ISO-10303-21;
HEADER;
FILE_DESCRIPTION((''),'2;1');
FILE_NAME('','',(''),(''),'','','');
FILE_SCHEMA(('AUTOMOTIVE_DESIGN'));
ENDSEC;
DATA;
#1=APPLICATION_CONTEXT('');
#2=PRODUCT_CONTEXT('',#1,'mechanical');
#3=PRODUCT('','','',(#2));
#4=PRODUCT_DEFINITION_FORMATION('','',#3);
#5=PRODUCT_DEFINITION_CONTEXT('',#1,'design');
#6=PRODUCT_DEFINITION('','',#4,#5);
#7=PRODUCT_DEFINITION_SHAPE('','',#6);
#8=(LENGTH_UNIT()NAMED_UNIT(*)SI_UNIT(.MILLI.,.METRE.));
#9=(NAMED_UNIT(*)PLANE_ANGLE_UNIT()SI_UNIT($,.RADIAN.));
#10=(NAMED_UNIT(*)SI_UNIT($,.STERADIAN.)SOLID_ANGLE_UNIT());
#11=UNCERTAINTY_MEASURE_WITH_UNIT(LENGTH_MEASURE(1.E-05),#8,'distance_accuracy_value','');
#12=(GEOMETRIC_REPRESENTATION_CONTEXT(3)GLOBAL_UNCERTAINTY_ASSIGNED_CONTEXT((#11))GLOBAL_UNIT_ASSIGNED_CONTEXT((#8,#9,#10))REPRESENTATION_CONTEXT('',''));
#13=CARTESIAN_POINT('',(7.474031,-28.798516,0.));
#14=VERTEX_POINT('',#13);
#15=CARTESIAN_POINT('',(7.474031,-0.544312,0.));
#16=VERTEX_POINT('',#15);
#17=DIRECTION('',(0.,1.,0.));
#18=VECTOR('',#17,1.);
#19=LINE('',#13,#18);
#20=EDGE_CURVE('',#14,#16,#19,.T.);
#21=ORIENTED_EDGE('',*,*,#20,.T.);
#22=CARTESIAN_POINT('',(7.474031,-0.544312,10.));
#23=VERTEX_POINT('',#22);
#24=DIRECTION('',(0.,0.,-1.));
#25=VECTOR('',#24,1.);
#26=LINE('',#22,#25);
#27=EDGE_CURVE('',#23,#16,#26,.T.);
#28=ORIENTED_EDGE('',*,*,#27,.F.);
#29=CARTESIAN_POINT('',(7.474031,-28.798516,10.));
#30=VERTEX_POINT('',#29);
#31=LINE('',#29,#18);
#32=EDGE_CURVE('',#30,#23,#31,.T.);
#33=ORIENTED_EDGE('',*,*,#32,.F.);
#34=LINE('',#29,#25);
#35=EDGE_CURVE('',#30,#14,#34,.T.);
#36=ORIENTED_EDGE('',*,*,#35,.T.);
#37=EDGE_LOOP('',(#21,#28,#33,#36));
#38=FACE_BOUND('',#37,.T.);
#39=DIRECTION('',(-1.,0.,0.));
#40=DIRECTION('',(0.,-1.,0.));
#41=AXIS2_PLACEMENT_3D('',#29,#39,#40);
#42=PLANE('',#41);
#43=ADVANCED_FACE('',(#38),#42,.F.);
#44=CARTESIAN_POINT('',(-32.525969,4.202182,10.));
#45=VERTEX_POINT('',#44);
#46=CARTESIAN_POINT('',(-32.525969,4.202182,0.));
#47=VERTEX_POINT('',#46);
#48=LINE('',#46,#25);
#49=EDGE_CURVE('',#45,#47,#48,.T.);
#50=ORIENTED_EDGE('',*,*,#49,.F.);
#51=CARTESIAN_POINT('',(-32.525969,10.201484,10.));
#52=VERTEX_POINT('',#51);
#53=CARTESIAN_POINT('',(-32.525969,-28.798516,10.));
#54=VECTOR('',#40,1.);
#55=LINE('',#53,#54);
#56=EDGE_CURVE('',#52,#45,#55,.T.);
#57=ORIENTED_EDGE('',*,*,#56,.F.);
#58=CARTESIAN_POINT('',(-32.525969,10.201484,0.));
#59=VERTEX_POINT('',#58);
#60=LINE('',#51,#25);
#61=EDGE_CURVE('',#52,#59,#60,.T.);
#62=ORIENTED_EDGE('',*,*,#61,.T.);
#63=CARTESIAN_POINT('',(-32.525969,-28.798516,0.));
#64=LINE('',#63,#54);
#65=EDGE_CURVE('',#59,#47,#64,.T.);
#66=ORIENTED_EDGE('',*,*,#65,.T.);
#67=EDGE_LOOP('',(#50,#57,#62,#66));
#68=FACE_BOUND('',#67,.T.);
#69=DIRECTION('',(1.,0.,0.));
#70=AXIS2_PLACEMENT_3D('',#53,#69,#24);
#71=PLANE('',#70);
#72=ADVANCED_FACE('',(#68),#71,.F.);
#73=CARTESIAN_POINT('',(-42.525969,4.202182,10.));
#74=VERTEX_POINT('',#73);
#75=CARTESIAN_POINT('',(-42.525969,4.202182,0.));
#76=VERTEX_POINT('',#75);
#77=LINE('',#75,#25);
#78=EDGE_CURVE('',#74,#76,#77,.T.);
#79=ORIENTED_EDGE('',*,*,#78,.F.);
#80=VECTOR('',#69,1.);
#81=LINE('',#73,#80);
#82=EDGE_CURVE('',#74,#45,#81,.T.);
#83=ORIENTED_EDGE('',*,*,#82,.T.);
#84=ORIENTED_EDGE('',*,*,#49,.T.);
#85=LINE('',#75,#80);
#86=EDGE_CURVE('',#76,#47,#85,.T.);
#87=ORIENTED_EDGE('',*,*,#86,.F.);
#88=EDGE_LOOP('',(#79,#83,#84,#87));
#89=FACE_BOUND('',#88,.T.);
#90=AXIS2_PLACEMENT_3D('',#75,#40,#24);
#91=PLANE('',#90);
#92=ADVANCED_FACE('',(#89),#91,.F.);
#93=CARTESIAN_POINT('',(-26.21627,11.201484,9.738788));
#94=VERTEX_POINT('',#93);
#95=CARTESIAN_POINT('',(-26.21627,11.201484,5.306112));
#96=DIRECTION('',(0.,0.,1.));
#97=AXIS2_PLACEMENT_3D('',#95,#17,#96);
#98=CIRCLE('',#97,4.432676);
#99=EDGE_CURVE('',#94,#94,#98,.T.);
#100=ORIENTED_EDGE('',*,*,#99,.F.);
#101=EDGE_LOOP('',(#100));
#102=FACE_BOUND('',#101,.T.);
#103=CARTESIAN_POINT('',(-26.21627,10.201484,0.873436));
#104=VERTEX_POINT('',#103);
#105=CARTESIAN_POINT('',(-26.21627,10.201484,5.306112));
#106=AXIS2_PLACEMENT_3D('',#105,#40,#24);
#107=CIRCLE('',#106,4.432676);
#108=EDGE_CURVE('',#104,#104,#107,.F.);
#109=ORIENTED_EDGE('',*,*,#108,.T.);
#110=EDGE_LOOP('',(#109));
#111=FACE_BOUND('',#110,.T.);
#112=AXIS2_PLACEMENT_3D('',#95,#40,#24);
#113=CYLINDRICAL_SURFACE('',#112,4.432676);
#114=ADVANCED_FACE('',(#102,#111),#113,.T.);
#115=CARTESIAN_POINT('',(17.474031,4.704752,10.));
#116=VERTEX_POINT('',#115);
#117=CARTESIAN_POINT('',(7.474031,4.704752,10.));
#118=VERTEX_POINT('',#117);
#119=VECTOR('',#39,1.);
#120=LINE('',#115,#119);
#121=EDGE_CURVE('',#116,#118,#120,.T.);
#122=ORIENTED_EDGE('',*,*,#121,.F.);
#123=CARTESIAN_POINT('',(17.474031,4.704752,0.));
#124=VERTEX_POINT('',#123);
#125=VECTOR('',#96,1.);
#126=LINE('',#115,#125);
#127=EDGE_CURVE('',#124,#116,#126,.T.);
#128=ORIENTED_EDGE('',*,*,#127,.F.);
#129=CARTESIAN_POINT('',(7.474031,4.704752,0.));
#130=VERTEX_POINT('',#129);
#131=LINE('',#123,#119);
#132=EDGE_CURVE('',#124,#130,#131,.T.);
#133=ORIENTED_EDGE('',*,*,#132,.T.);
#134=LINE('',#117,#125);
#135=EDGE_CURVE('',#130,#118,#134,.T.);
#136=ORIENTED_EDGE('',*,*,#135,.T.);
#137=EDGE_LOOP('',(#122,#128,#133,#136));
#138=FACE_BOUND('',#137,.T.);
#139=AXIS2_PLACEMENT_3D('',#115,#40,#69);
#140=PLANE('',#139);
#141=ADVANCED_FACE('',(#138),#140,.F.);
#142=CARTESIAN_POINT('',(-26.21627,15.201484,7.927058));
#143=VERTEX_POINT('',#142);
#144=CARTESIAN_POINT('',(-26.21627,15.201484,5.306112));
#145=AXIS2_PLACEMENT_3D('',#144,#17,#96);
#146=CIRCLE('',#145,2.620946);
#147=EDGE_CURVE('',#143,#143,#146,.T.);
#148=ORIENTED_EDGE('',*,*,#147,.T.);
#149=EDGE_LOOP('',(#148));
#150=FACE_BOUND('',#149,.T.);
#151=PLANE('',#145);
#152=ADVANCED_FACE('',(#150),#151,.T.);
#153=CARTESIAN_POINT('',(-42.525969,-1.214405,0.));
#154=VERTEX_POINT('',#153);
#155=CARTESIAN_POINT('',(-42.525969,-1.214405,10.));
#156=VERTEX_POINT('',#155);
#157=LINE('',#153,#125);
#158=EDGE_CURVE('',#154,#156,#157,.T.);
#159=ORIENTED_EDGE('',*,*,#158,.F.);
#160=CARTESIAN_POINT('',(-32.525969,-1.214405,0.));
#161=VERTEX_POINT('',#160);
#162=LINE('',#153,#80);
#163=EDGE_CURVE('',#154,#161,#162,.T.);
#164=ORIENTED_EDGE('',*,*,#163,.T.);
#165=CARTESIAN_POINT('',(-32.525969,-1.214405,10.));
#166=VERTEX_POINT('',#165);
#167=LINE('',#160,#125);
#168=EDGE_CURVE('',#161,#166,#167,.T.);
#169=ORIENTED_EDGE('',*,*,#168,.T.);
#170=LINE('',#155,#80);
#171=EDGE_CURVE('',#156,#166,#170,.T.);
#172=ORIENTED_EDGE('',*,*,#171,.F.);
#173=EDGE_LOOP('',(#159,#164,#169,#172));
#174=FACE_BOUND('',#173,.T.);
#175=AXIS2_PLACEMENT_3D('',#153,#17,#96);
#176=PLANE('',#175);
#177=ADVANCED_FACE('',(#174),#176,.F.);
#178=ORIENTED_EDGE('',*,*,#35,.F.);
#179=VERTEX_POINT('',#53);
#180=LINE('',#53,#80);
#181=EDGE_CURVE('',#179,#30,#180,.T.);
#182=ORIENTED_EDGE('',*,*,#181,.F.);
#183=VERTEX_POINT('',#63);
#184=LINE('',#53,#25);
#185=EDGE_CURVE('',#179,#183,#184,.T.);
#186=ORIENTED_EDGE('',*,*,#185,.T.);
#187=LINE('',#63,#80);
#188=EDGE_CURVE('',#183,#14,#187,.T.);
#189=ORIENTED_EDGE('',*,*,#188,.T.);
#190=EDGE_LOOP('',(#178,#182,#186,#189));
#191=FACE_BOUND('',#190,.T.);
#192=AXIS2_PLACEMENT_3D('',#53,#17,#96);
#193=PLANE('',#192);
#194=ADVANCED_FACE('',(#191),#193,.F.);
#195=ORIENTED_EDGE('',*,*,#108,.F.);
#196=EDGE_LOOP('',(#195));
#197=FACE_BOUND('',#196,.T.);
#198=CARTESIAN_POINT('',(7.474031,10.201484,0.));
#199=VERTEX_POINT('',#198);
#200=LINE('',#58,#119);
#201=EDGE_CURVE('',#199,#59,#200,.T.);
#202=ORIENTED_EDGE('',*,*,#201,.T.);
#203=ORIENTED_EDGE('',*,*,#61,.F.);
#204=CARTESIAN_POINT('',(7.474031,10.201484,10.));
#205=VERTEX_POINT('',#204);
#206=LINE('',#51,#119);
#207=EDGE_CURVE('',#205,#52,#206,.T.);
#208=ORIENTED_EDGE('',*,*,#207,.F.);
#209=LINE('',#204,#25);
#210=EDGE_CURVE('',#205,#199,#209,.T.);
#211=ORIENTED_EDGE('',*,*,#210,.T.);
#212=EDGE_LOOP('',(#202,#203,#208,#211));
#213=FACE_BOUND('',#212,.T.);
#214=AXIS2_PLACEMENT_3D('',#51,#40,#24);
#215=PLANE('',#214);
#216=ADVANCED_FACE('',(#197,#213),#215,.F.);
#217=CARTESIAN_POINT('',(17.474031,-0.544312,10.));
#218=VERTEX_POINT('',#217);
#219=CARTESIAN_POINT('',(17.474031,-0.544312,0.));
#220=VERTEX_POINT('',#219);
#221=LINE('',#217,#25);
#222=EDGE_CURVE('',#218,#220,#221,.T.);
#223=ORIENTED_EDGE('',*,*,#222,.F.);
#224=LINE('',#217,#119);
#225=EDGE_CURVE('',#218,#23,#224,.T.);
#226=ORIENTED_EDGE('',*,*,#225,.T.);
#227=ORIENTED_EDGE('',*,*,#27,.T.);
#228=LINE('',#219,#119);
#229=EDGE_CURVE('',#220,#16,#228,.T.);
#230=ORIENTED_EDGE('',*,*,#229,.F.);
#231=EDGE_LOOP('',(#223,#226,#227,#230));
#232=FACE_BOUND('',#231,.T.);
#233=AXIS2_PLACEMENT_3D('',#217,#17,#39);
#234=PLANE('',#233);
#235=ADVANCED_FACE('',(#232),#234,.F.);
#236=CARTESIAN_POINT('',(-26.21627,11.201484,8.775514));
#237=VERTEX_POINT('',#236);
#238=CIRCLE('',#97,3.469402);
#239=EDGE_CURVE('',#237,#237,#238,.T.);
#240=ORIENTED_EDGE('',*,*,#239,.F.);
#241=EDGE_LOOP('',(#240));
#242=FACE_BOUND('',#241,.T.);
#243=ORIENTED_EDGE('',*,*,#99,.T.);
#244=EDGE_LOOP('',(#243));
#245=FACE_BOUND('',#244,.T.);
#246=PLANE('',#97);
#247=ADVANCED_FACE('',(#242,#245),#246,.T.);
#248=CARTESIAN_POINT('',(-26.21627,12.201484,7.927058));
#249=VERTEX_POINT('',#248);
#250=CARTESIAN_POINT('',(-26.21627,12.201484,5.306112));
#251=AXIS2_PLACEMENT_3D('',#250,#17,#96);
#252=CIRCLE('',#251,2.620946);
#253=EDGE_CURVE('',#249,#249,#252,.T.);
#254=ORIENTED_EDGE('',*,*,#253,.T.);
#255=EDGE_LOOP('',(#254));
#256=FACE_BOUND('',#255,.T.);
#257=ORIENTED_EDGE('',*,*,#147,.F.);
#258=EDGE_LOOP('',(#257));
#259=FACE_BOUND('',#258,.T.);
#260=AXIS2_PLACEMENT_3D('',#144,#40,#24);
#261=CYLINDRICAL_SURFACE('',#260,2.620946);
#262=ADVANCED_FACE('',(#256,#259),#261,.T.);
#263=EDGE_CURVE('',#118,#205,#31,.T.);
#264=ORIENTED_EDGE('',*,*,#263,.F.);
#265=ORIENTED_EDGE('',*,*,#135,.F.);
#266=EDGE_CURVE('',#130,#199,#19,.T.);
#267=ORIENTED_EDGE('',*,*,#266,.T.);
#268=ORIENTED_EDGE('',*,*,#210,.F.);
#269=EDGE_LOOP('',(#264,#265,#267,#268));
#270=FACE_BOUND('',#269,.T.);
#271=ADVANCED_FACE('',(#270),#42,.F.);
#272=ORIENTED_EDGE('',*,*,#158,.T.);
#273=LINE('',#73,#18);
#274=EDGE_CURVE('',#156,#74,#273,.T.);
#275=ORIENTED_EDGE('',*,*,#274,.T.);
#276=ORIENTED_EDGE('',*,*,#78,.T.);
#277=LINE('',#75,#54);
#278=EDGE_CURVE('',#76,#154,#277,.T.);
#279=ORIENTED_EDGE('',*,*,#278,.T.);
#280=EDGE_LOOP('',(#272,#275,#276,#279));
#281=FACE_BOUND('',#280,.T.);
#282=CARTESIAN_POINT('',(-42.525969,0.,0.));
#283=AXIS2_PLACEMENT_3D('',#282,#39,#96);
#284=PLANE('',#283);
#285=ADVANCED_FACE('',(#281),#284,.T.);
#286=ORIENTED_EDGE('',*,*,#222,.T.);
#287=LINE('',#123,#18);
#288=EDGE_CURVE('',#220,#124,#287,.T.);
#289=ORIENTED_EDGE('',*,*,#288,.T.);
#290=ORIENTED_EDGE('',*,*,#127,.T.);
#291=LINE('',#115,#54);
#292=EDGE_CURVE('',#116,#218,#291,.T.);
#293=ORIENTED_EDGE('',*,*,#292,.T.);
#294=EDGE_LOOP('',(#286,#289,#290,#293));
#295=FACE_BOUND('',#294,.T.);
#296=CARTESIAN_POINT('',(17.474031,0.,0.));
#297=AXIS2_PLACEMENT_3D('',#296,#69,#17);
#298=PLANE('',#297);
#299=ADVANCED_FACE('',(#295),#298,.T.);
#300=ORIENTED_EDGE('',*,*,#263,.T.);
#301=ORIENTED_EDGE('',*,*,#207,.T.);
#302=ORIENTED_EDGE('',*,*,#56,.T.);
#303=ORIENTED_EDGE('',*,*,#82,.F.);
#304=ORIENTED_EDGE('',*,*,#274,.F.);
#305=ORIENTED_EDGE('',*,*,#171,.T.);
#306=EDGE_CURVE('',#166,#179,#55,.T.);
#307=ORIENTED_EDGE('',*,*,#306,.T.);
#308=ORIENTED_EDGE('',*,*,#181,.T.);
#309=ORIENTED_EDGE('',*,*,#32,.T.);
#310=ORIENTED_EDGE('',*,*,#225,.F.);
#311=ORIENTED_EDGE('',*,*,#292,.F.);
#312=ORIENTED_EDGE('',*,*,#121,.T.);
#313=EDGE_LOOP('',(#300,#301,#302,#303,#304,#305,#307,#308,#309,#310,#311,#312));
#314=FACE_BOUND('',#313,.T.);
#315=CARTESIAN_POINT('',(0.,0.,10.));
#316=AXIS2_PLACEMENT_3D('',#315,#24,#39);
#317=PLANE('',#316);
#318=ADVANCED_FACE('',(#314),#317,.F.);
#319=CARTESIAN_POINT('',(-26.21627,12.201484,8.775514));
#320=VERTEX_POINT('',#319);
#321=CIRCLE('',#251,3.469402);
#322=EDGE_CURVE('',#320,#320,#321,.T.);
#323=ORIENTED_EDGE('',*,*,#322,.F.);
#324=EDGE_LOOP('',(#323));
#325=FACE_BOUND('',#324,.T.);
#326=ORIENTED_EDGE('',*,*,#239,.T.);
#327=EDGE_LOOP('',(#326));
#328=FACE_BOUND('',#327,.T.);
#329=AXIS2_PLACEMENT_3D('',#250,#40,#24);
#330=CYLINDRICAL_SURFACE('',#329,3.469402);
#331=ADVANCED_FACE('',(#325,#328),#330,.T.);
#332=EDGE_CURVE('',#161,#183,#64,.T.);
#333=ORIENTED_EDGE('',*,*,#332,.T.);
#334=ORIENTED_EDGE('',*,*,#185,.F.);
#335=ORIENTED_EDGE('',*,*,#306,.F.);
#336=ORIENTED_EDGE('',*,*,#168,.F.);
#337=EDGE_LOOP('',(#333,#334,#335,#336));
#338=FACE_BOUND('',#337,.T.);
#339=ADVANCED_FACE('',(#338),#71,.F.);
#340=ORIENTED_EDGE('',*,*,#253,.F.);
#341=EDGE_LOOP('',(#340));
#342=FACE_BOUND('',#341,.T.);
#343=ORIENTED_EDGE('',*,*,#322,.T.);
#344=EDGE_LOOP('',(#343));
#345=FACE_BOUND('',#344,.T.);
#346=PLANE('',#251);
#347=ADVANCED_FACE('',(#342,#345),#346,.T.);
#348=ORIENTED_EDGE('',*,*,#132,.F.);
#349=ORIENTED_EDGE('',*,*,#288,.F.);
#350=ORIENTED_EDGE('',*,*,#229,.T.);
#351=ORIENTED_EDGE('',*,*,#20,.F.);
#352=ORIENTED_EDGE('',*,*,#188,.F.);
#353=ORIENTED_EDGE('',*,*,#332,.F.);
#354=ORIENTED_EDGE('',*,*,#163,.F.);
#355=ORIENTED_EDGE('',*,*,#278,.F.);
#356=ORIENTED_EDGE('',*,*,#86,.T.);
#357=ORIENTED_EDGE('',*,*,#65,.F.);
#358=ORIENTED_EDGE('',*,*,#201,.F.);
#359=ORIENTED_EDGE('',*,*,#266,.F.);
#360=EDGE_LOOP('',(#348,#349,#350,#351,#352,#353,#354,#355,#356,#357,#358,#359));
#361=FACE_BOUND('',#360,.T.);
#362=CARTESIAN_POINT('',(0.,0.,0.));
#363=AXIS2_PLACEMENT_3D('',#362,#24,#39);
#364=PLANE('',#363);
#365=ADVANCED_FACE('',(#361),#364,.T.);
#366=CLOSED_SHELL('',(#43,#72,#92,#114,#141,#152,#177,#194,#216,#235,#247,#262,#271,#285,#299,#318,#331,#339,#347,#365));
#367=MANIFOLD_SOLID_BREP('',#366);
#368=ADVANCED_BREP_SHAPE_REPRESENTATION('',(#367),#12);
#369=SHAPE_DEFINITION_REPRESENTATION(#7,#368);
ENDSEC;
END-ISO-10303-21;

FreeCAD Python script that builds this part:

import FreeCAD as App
import Part
import Sketcher


def add_polygon(sketch, points):
    """Adds a closed chain of lines whose ends are joined by coincident constraints."""
    first, n = sketch.GeometryCount, len(points)
    for a, b in zip(points, points[1:] + points[:1]):
        sketch.addGeometry(Part.LineSegment(App.Vector(*a, 0), App.Vector(*b, 0)), False)
    for i in range(n):
        sketch.addConstraint(Sketcher.Constraint("Coincident", first + i, 2, first + (i + 1) % n, 1))

doc = App.newDocument("Part")
body = doc.addObject("PartDesign::Body", "Body")

# Sketch on XY plane
sketch1 = doc.addObject("Sketcher::SketchObject", "Sketch")
body.addObject(sketch1)
sketch1.AttachmentSupport = (doc.XY_Plane, [""])
sketch1.MapMode = "FlatFace"
add_polygon(sketch1, [(-33, 10), (-33, -29), (7, -29), (7, 10)])  # lines 0-3
sketch1.addConstraint(Sketcher.Constraint("Vertical", 0))
sketch1.addConstraint(Sketcher.Constraint("Horizontal", 1))
sketch1.addConstraint(Sketcher.Constraint("Vertical", 2))
sketch1.addConstraint(Sketcher.Constraint("Horizontal", 3))
sketch1.addConstraint(Sketcher.Constraint("DistanceX", 1, 1, 1, 2, 40.0))
sketch1.addConstraint(Sketcher.Constraint("DistanceY", 0, 2, 0, 1, 39.0))
sketch1.addConstraint(Sketcher.Constraint("DistanceX", 0, 2, -1, 1, 32.525969))
sketch1.addConstraint(Sketcher.Constraint("DistanceY", 0, 2, -1, 1, 28.798516))
pad1 = doc.addObject("PartDesign::Pad", "Pad")
body.addObject(pad1)
pad1.Profile = sketch1
pad1.Length = 10

# Sketch on XZ plane
sketch2 = doc.addObject("Sketcher::SketchObject", "Sketch001")
body.addObject(sketch2)
sketch2.AttachmentSupport = (doc.XZ_Plane, [""])
sketch2.MapMode = "FlatFace"
sketch2.AttachmentOffset = App.Placement(App.Vector(0, 0, -10.201484), App.Rotation())
sketch2.addGeometry(Part.Circle(App.Vector(-26.2, 5.3, 0), App.Vector(0, 0, 1), 4.4), False)
sketch2.addConstraint(Sketcher.Constraint("Diameter", 0, 8.865353))
sketch2.addConstraint(Sketcher.Constraint("DistanceX", 0, 3, -1, 1, 26.21627))
sketch2.addConstraint(Sketcher.Constraint("DistanceY", -1, 1, 0, 3, 5.306112))
pad2 = doc.addObject("PartDesign::Pad", "Pad001")
body.addObject(pad2)
pad2.Profile = sketch2
pad2.Length = 1
pad2.Reversed = True

# Sketch on XZ plane
sketch3 = doc.addObject("Sketcher::SketchObject", "Sketch002")
body.addObject(sketch3)
sketch3.AttachmentSupport = (doc.XZ_Plane, [""])
sketch3.MapMode = "FlatFace"
sketch3.AttachmentOffset = App.Placement(App.Vector(0, 0, -11.201484), App.Rotation())
sketch3.addGeometry(Part.Circle(App.Vector(-26.2, 5.3, 0), App.Vector(0, 0, 1), 3.5), False)
sketch3.addConstraint(Sketcher.Constraint("Diameter", 0, 6.938804))
sketch3.addConstraint(Sketcher.Constraint("DistanceX", 0, 3, -1, 1, 26.21627))
sketch3.addConstraint(Sketcher.Constraint("DistanceY", -1, 1, 0, 3, 5.306112))
pad3 = doc.addObject("PartDesign::Pad", "Pad002")
body.addObject(pad3)
pad3.Profile = sketch3
pad3.Length = 1
pad3.Reversed = True

# Sketch on XZ plane
sketch4 = doc.addObject("Sketcher::SketchObject", "Sketch003")
body.addObject(sketch4)
sketch4.AttachmentSupport = (doc.XZ_Plane, [""])
sketch4.MapMode = "FlatFace"
sketch4.AttachmentOffset = App.Placement(App.Vector(0, 0, -12.201484), App.Rotation())
sketch4.addGeometry(Part.Circle(App.Vector(-26.2, 5.3, 0), App.Vector(0, 0, 1), 2.6), False)
sketch4.addConstraint(Sketcher.Constraint("Diameter", 0, 5.241892))
sketch4.addConstraint(Sketcher.Constraint("DistanceX", 0, 3, -1, 1, 26.21627))
sketch4.addConstraint(Sketcher.Constraint("DistanceY", -1, 1, 0, 3, 5.306112))
pad4 = doc.addObject("PartDesign::Pad", "Pad003")
body.addObject(pad4)
pad4.Profile = sketch4
pad4.Length = 3
pad4.Reversed = True

# Sketch on YZ plane
sketch5 = doc.addObject("Sketcher::SketchObject", "Sketch004")
body.addObject(sketch5)
sketch5.AttachmentSupport = (doc.YZ_Plane, [""])
sketch5.MapMode = "FlatFace"
sketch5.AttachmentOffset = App.Placement(App.Vector(0, 0, -32.525969), App.Rotation())
add_polygon(sketch5, [(4, 0), (-1, 0), (-1, 10), (4, 10)])  # lines 0-3
sketch5.addConstraint(Sketcher.Constraint("Horizontal", 0))
sketch5.addConstraint(Sketcher.Constraint("Vertical", 1))
sketch5.addConstraint(Sketcher.Constraint("Horizontal", 2))
sketch5.addConstraint(Sketcher.Constraint("Vertical", 3))
sketch5.addConstraint(Sketcher.Constraint("PointOnObject", 0, 2, -1))
sketch5.addConstraint(Sketcher.Constraint("DistanceY", 1, 1, 1, 2, 10.0))
sketch5.addConstraint(Sketcher.Constraint("DistanceX", 0, 2, 0, 1, 5.416587))
sketch5.addConstraint(Sketcher.Constraint("DistanceX", 0, 2, -1, 1, 1.214405))
pad5 = doc.addObject("PartDesign::Pad", "Pad004")
body.addObject(pad5)
pad5.Profile = sketch5
pad5.Length = 10
pad5.Reversed = True

# Sketch on YZ plane
sketch6 = doc.addObject("Sketcher::SketchObject", "Sketch005")
body.addObject(sketch6)
sketch6.AttachmentSupport = (doc.YZ_Plane, [""])
sketch6.MapMode = "FlatFace"
sketch6.AttachmentOffset = App.Placement(App.Vector(0, 0, 7.474031), App.Rotation())
add_polygon(sketch6, [(5, 10), (-1, 10), (-1, 0), (5, 0)])  # lines 0-3
sketch6.addConstraint(Sketcher.Constraint("Horizontal", 0))
sketch6.addConstraint(Sketcher.Constraint("Vertical", 1))
sketch6.addConstraint(Sketcher.Constraint("Horizontal", 2))
sketch6.addConstraint(Sketcher.Constraint("Vertical", 3))
sketch6.addConstraint(Sketcher.Constraint("PointOnObject", 1, 2, -1))
sketch6.addConstraint(Sketcher.Constraint("DistanceY", 1, 2, 1, 1, 10.0))
sketch6.addConstraint(Sketcher.Constraint("DistanceX", 0, 2, 0, 1, 5.249064))
sketch6.addConstraint(Sketcher.Constraint("DistanceX", 0, 2, -1, 1, 0.544312))
pad6 = doc.addObject("PartDesign::Pad", "Pad005")
body.addObject(pad6)
pad6.Profile = sketch6
pad6.Length = 10

doc.recompute()
